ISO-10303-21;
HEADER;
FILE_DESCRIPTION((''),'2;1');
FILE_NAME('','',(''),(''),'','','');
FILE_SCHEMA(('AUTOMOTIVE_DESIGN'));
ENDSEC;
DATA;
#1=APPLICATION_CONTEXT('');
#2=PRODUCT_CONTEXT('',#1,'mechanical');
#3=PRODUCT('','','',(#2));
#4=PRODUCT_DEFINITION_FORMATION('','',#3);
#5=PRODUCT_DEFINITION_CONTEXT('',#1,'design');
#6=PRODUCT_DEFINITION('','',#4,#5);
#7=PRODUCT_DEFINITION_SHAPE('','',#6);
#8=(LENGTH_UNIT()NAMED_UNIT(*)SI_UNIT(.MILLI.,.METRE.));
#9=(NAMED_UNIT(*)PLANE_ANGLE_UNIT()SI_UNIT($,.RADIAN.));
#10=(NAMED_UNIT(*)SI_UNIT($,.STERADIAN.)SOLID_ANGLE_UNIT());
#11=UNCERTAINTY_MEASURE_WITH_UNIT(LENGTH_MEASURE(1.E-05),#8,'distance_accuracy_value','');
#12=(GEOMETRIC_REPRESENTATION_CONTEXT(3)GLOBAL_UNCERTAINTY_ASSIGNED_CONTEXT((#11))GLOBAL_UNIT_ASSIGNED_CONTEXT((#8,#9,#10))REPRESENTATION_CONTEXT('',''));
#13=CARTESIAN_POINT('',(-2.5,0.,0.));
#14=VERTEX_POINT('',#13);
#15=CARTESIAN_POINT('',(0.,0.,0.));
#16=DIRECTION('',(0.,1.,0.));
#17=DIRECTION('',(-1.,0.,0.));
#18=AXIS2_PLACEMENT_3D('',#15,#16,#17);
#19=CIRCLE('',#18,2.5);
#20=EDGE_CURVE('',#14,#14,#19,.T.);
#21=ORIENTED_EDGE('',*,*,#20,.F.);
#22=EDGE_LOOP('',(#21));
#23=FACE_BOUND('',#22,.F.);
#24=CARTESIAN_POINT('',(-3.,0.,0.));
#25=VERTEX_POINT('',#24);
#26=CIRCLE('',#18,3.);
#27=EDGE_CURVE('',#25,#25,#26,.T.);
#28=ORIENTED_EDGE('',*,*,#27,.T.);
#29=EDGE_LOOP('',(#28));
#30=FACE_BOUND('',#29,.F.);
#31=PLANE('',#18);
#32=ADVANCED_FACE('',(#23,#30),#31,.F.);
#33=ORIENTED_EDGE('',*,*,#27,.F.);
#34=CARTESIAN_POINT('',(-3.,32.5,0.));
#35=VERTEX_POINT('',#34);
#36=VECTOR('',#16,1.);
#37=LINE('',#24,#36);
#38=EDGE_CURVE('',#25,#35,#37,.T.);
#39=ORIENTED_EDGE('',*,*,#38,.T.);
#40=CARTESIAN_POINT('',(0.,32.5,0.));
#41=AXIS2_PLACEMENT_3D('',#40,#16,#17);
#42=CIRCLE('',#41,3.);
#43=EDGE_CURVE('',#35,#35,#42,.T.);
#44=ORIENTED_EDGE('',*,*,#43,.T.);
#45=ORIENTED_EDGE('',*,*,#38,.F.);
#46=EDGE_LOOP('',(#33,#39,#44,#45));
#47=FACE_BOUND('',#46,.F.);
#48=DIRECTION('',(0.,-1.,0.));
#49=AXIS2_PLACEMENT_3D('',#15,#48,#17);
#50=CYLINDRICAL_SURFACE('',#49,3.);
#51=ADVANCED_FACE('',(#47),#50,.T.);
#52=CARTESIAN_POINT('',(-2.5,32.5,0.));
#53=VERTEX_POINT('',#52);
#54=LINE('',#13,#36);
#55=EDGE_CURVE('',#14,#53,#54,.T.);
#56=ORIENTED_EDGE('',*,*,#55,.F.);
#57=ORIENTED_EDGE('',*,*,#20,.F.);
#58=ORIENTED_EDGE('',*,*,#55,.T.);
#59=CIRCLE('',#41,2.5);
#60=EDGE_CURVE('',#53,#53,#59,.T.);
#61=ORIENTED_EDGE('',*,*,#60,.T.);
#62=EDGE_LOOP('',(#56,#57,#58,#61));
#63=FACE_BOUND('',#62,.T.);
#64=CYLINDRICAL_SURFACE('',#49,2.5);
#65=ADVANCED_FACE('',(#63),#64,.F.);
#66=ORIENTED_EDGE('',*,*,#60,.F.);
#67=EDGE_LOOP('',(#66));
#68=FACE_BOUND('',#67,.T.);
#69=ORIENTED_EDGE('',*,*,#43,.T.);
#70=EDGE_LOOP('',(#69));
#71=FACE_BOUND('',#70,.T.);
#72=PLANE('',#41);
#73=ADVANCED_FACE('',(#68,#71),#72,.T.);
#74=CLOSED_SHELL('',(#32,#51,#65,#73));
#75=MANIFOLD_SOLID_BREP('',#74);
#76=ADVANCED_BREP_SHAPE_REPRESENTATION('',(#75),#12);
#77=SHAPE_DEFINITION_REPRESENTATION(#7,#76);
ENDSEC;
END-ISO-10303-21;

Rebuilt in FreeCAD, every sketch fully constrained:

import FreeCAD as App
import Part
import Sketcher

V = App.Vector
Q = App.Units.Quantity

doc = App.newDocument("Part")
body = doc.addObject("PartDesign::Body", "Body")

# Sketch on XZ plane
sketch1 = doc.addObject("Sketcher::SketchObject", "Sketch")
body.addObject(sketch1)
sketch1.AttachmentSupport = (doc.XZ_Plane, [""])
sketch1.MapMode = "FlatFace"
sketch1.addGeometry(Part.Circle(V(0, 0, 0), V(0, 0, 1), 3), False)
sketch1.addGeometry(Part.Circle(V(0, 0, 0), V(0, 0, 1), 2.5), False)
sketch1.addConstraint(Sketcher.Constraint("Coincident", 0, 3, -1, 1))
sketch1.addConstraint(Sketcher.Constraint("Coincident", 1, 3, -1, 1))
sketch1.addConstraint(Sketcher.Constraint("Diameter", 0, Q("6 mm")))
sketch1.addConstraint(Sketcher.Constraint("Diameter", 1, Q("5 mm")))
pad1 = doc.addObject("PartDesign::Pad", "Pad")
body.addObject(pad1)
pad1.Profile = sketch1
pad1.Length = 32.5
pad1.Reversed = True

doc.recompute()
